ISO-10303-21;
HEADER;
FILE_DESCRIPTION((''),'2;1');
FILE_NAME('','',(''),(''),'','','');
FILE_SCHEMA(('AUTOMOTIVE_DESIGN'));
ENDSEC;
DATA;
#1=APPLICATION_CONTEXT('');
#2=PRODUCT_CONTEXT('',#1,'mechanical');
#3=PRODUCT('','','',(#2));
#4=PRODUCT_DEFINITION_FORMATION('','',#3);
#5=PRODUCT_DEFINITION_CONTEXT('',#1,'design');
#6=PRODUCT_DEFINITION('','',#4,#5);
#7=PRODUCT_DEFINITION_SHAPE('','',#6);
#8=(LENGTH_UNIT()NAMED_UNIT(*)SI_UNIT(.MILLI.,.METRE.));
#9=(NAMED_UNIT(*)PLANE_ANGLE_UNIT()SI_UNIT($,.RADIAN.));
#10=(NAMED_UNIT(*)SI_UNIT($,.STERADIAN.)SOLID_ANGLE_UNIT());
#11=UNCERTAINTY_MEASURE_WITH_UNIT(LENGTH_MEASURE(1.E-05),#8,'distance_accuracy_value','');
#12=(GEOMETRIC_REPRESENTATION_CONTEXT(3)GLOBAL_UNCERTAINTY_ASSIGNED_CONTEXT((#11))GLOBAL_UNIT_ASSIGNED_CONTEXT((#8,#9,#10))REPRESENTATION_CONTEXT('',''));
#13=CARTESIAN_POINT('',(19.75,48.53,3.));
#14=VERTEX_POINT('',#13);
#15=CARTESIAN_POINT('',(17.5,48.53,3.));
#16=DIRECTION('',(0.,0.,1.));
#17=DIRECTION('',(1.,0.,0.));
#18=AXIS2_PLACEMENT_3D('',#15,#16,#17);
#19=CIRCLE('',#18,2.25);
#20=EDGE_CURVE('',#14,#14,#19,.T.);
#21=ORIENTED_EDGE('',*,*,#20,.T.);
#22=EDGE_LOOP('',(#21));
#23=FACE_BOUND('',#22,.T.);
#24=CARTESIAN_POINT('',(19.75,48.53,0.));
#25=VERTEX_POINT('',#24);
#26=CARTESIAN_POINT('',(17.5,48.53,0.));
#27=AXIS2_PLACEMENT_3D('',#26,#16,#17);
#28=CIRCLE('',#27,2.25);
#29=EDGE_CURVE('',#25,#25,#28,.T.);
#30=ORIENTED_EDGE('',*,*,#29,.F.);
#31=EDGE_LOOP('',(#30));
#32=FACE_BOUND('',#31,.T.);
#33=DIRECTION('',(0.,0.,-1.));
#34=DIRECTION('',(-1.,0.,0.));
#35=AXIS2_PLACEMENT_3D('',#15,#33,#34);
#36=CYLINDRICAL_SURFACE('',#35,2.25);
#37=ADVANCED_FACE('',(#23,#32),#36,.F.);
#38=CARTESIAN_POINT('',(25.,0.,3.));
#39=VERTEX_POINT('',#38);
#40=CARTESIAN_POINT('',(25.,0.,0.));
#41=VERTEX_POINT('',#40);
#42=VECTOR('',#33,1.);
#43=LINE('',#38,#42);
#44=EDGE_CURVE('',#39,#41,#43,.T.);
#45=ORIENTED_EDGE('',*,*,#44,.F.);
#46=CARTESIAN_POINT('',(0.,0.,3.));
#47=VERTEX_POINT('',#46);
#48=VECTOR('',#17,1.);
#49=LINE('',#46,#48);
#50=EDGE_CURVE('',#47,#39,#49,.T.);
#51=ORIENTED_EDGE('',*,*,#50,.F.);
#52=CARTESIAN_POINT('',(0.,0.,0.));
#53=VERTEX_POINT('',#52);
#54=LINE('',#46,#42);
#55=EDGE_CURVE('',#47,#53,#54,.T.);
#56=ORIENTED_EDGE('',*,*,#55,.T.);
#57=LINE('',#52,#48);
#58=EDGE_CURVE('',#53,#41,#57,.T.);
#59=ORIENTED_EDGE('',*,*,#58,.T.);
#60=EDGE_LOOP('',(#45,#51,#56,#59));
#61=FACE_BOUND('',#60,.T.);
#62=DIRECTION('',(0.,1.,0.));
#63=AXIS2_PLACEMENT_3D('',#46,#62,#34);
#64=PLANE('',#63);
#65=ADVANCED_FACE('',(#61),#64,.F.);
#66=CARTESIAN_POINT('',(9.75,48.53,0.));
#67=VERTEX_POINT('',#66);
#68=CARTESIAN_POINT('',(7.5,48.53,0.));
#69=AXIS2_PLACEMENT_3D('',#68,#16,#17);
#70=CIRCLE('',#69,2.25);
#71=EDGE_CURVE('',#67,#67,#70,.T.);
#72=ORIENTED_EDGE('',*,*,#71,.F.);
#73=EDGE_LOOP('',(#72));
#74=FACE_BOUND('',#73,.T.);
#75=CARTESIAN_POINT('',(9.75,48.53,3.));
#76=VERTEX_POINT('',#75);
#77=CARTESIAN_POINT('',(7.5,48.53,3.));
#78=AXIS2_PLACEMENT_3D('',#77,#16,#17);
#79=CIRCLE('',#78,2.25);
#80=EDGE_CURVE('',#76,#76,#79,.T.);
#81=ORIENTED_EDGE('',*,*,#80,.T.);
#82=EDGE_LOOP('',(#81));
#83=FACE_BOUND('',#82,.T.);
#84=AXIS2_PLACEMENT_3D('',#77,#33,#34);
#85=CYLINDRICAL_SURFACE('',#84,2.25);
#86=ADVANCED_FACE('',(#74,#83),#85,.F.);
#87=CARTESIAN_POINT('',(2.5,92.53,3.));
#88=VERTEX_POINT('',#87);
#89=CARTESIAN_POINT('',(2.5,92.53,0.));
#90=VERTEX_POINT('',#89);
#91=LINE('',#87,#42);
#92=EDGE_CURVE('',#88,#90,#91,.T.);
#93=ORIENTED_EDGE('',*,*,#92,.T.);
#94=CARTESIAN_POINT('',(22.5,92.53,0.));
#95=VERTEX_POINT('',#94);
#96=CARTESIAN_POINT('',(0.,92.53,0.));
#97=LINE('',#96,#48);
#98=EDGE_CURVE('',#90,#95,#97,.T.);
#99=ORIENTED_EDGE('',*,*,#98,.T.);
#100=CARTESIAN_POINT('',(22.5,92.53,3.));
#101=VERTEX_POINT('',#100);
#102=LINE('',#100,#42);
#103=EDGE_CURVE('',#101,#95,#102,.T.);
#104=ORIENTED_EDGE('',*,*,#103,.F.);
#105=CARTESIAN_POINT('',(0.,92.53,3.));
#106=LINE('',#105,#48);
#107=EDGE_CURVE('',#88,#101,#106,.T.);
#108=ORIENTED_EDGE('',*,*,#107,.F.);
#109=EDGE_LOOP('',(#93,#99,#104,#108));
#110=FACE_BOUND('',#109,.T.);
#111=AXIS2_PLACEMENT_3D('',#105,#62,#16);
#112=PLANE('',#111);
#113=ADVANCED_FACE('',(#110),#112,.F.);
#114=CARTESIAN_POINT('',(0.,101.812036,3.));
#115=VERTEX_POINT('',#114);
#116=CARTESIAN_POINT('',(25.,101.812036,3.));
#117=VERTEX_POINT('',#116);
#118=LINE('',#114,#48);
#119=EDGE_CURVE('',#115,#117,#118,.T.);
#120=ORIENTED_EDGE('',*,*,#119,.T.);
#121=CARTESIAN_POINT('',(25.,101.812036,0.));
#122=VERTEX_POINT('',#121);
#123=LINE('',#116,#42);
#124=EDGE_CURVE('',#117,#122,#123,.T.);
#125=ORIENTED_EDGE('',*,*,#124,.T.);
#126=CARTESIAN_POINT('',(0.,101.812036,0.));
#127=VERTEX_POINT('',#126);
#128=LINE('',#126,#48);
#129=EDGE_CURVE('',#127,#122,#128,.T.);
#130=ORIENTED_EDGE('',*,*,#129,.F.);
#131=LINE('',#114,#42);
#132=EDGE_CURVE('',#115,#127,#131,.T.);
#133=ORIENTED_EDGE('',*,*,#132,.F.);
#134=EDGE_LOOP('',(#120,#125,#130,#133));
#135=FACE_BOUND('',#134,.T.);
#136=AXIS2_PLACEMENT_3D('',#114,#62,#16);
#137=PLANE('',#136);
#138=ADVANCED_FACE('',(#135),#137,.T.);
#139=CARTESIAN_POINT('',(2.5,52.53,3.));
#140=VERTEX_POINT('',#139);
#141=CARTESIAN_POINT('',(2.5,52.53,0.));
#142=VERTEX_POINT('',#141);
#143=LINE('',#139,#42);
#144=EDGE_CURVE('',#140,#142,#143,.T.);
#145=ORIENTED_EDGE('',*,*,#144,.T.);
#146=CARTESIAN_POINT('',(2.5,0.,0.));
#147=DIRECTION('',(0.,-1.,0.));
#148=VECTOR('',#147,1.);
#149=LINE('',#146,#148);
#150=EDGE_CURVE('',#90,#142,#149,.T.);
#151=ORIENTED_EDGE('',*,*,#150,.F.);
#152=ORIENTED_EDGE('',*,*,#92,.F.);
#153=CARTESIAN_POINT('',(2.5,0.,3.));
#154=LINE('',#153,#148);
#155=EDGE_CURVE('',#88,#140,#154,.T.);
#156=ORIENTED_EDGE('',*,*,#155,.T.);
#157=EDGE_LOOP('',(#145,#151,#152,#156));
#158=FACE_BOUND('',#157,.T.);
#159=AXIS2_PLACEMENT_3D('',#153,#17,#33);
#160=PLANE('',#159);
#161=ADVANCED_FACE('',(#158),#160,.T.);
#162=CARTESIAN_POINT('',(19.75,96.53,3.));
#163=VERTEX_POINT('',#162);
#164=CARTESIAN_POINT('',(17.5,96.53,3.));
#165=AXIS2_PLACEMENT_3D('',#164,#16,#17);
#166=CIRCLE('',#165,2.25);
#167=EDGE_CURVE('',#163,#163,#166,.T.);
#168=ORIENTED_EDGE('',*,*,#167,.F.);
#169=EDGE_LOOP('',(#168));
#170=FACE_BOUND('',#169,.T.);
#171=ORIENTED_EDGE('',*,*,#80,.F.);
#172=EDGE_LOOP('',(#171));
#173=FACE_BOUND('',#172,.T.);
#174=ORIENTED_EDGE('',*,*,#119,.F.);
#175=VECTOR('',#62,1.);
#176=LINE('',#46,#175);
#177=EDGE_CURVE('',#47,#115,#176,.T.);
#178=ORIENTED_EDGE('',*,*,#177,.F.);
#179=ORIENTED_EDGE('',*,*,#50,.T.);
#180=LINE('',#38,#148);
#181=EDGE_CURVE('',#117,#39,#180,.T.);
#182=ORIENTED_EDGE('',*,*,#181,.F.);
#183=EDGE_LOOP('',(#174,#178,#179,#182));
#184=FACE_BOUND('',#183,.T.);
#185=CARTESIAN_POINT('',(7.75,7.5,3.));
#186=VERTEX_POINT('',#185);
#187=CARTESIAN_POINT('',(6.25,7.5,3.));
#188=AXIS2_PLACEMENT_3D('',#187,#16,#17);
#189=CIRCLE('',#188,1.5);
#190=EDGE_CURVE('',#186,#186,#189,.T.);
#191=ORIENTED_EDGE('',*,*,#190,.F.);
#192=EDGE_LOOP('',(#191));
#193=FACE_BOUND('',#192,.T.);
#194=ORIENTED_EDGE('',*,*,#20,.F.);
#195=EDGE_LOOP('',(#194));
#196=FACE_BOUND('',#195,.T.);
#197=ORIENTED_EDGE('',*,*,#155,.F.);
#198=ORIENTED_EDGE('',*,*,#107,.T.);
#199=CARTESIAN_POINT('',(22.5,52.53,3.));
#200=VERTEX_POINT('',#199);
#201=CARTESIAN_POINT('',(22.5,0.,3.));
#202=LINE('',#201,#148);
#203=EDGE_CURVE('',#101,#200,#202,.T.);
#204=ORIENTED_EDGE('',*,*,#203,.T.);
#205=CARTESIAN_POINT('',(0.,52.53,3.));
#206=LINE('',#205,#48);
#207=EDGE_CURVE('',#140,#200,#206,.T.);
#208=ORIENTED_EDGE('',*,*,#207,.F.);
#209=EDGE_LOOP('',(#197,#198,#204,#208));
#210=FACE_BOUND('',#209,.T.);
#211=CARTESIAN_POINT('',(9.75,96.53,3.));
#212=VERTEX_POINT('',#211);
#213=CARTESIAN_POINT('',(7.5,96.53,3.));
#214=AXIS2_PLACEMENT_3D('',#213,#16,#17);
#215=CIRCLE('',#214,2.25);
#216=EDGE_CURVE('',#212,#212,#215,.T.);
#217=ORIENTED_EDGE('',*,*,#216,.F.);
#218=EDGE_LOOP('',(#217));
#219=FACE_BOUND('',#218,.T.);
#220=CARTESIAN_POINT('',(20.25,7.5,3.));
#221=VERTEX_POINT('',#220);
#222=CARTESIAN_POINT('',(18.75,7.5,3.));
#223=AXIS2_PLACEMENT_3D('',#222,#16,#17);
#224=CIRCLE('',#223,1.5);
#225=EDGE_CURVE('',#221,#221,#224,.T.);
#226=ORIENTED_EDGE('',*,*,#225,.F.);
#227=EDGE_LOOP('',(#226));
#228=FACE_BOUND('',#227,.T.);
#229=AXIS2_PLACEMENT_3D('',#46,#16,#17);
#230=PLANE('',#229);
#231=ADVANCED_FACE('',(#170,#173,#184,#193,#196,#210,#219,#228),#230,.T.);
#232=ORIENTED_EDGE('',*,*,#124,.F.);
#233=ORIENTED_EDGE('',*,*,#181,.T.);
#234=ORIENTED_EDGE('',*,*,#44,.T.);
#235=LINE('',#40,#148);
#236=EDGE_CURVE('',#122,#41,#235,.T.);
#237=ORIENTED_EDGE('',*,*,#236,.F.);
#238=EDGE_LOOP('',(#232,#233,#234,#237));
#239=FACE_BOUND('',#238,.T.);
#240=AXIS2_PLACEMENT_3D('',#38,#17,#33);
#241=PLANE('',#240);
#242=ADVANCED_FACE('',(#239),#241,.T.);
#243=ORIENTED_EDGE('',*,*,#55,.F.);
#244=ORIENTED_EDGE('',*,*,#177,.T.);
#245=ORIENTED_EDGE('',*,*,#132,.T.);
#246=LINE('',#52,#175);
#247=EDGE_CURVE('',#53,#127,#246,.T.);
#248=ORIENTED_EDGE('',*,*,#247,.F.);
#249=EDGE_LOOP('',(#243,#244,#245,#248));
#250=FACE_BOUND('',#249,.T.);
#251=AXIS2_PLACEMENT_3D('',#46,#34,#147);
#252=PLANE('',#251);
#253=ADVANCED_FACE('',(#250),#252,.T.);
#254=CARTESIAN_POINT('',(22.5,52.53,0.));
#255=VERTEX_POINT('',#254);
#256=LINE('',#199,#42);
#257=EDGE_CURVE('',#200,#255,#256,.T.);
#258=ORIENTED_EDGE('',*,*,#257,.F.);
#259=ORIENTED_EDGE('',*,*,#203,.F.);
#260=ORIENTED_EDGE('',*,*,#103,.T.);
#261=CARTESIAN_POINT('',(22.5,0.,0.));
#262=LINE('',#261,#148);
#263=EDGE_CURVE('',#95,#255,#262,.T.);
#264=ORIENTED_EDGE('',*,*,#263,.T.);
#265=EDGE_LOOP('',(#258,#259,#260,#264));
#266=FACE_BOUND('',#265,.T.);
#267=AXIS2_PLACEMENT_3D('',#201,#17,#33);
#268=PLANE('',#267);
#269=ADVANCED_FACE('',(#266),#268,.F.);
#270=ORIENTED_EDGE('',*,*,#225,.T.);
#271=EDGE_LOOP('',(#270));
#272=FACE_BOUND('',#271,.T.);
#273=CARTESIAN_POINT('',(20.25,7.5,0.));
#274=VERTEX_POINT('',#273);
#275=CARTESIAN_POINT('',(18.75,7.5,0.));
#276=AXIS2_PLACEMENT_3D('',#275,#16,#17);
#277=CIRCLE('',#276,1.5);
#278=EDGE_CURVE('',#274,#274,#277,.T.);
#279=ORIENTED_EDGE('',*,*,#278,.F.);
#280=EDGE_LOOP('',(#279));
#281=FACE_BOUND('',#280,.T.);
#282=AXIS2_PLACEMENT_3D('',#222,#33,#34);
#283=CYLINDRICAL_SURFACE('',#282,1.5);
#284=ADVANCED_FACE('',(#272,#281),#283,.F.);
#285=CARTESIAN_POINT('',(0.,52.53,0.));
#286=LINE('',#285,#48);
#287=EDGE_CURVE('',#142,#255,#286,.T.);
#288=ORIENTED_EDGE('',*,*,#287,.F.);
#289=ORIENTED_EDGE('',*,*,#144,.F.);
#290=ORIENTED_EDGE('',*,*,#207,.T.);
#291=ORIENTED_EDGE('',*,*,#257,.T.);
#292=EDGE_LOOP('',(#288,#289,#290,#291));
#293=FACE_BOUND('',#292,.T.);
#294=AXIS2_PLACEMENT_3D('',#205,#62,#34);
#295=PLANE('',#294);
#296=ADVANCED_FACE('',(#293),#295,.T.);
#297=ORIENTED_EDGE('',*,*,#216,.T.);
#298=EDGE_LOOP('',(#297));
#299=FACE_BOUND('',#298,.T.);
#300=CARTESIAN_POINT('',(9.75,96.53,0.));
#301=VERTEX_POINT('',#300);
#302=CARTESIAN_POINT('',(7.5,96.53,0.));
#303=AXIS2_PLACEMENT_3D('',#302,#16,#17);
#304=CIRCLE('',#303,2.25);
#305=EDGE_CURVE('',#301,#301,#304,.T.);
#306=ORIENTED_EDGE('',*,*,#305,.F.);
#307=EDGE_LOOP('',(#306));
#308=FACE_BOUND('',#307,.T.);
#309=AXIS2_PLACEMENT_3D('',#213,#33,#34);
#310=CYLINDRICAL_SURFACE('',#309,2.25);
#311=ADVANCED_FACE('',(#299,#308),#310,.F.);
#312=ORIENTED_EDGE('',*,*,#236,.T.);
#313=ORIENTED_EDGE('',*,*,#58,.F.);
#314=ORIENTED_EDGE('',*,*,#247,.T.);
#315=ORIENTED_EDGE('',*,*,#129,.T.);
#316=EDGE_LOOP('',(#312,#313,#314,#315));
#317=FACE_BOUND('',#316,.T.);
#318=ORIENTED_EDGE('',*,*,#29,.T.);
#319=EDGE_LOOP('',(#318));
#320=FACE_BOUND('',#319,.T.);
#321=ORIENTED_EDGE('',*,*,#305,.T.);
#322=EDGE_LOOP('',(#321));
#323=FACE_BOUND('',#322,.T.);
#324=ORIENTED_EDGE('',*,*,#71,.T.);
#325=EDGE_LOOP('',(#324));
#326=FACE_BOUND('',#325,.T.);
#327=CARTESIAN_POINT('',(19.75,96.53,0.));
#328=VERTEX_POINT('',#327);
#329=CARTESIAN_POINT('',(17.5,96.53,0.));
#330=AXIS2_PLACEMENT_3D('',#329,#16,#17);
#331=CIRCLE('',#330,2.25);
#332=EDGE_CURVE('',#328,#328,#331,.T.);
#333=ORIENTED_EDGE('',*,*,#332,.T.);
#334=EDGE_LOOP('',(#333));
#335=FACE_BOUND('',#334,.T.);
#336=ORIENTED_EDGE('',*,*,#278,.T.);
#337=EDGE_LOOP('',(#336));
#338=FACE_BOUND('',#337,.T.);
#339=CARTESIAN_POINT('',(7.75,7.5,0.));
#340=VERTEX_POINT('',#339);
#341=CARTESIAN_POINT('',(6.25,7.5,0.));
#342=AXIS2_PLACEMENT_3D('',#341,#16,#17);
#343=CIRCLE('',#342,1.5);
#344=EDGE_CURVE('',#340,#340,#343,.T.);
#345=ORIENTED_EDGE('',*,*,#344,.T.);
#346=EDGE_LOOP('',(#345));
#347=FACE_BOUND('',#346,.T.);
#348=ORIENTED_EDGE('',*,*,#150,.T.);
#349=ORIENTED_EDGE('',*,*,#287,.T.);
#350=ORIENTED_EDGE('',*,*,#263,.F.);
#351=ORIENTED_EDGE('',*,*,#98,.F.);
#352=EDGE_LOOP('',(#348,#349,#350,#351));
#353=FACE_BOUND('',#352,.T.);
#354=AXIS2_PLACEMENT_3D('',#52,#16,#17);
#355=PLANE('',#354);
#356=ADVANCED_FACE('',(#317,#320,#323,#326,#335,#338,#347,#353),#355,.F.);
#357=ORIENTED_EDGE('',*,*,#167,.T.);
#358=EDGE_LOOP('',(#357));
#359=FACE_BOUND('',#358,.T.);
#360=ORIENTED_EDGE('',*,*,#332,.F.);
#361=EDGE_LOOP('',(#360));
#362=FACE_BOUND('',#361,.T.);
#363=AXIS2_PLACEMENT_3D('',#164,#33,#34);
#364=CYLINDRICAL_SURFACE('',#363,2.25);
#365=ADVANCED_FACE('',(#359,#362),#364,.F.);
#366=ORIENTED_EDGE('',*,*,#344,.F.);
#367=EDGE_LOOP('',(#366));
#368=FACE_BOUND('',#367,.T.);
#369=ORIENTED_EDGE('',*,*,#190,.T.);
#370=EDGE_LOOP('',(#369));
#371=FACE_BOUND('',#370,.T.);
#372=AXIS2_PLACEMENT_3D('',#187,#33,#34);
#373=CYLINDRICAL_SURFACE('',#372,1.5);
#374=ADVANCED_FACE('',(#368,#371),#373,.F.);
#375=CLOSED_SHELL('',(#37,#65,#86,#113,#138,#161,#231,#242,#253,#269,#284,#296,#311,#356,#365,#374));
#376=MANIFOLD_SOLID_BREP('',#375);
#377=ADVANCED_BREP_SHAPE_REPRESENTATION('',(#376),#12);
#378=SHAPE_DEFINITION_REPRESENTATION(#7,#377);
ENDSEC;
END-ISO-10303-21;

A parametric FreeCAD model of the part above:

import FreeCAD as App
import Part
import Sketcher
Q = App.Units.Quantity

doc = App.newDocument("Part")
body = doc.addObject("PartDesign::Body", "Body")

# Sketch on XY plane
sketch1 = body.newObject("Sketcher::SketchObject", "Sketch")
sketch1.AttachmentSupport = (doc.getObject("XY_Plane"), [""])
sketch1.MapMode = "FlatFace"
sketch1.addGeometry([
    Part.LineSegment(App.Vector(0, 0, 0), App.Vector(25, 0, 0)),  # 0
    Part.LineSegment(App.Vector(25, 0, 0), App.Vector(25, 101.8, 0)),  # 1
    Part.LineSegment(App.Vector(25, 101.8, 0), App.Vector(0, 101.8, 0)),  # 2
    Part.LineSegment(App.Vector(0, 101.8, 0), App.Vector(0, 0, 0)),  # 3
    Part.Circle(App.Vector(6.2, 7.5, 0), App.Vector(0, 0, 1), 1.5),  # 4
    Part.Circle(App.Vector(18.8, 7.5, 0), App.Vector(0, 0, 1), 1.5),  # 5
    Part.Circle(App.Vector(17.5, 96.5, 0), App.Vector(0, 0, 1), 2.2),  # 6
    Part.Circle(App.Vector(7.5, 48.5, 0), App.Vector(0, 0, 1), 2.2),  # 7
    Part.Circle(App.Vector(17.5, 48.5, 0), App.Vector(0, 0, 1), 2.2),  # 8
    Part.Circle(App.Vector(7.5, 96.5, 0), App.Vector(0, 0, 1), 2.2),  # 9
    Part.LineSegment(App.Vector(22.5, 52.5, 0), App.Vector(2.5, 52.5, 0)),  # 10
    Part.LineSegment(App.Vector(2.5, 52.5, 0), App.Vector(2.5, 92.5, 0)),  # 11
    Part.LineSegment(App.Vector(2.5, 92.5, 0), App.Vector(22.5, 92.5, 0)),  # 12
    Part.LineSegment(App.Vector(22.5, 92.5, 0), App.Vector(22.5, 52.5, 0)),  # 13
], False)
sketch1.addConstraint([
    Sketcher.Constraint("Coincident", 0, 2, 1, 1),
    Sketcher.Constraint("Coincident", 1, 2, 2, 1),
    Sketcher.Constraint("Coincident", 2, 2, 3, 1),
    Sketcher.Constraint("Coincident", 3, 2, 0, 1),
    Sketcher.Constraint("Coincident", 10, 2, 11, 1),
    Sketcher.Constraint("Coincident", 11, 2, 12, 1),
    Sketcher.Constraint("Coincident", 12, 2, 13, 1),
    Sketcher.Constraint("Coincident", 13, 2, 10, 1),
    Sketcher.Constraint("Horizontal", 0),
    Sketcher.Constraint("Vertical", 1),
    Sketcher.Constraint("Horizontal", 2),
    Sketcher.Constraint("Vertical", 3),
    Sketcher.Constraint("Horizontal", 10),
    Sketcher.Constraint("Vertical", 11),
    Sketcher.Constraint("Horizontal", 12),
    Sketcher.Constraint("Vertical", 13),
    Sketcher.Constraint("Coincident", 3, 2, -1, 1),
    Sketcher.Constraint("Equal", 4, 5),
    Sketcher.Constraint("Equal", 6, 7),
    Sketcher.Constraint("Equal", 7, 8),
    Sketcher.Constraint("Equal", 8, 9),
    Sketcher.Constraint("Horizontal", 4, 3, 5, 3),
    Sketcher.Constraint("Horizontal", 7, 3, 8, 3),
    Sketcher.Constraint("Horizontal", 6, 3, 9, 3),
    Sketcher.Constraint("Vertical", 6, 3, 8, 3),
    Sketcher.Constraint("Vertical", 7, 3, 9, 3),
    Sketcher.Constraint("Diameter", 4, Q("3 mm")),
    Sketcher.Constraint("Diameter", 6, Q("4.5 mm")),
    Sketcher.Constraint("DistanceX", 0, 1, 0, 2, Q("25 mm")),
    Sketcher.Constraint("DistanceX", 10, 2, 10, 1, Q("20 mm")),
    Sketcher.Constraint("DistanceY", 11, 1, 11, 2, Q("40 mm")),
    Sketcher.Constraint("DistanceX", 7, 3, 6, 3, Q("10 mm")),
    Sketcher.Constraint("DistanceY", 7, 3, 6, 3, Q("48 mm")),
    Sketcher.Constraint("DistanceX", 10, 2, 7, 3, Q("5 mm")),
    Sketcher.Constraint("DistanceY", 7, 3, 10, 2, Q("4 mm")),
    Sketcher.Constraint("DistanceY", -1, 1, 4, 3, Q("7.5 mm")),
    Sketcher.Constraint("DistanceX", -1, 1, 6, 3, Q("17.5 mm")),
    Sketcher.Constraint("DistanceX", 4, 3, 5, 3, Q("12.5 mm")),
    Sketcher.Constraint("DistanceX", -1, 1, 4, 3, Q("6.25 mm")),
    Sketcher.Constraint("DistanceY", -1, 1, 6, 3, Q("96.53 mm")),
    Sketcher.Constraint("DistanceY", 1, 1, 1, 2, Q("101.812036 mm")),
])
pad1 = body.newObject("PartDesign::Pad", "Pad")
pad1.Profile = sketch1
pad1.Length = 3

doc.recompute()
